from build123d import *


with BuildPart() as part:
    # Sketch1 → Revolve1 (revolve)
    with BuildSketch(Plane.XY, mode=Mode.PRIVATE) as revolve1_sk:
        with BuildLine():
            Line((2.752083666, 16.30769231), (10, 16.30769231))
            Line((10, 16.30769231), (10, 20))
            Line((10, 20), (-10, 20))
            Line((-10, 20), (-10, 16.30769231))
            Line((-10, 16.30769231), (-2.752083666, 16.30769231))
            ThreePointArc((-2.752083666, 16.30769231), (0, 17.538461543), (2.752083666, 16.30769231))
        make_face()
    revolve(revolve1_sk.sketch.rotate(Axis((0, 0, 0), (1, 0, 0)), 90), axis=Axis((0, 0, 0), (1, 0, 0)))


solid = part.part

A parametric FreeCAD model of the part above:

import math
import FreeCAD as App
import Part
import Sketcher

V = App.Vector
Q = App.Units.Quantity

doc = App.newDocument("Part")
body = doc.addObject("PartDesign::Body", "Body")

sketch1 = doc.addObject("Sketcher::SketchObject", "Sketch")
body.addObject(sketch1)
sketch1.AttachmentSupport = (doc.XY_Plane, [""])
sketch1.MapMode = "FlatFace"
sketch1.addGeometry(Part.LineSegment(V(2.752084, 16.307692, 0), V(10, 16.307692, 0)), False)
sketch1.addGeometry(Part.LineSegment(V(10, 16.307692, 0), V(10, 20, 0)), False)
sketch1.addGeometry(Part.LineSegment(V(10, 20, 0), V(-10, 20, 0)), False)
sketch1.addGeometry(Part.LineSegment(V(-10, 20, 0), V(-10, 16.307692, 0)), False)
sketch1.addGeometry(Part.LineSegment(V(-10, 16.307692, 0), V(-2.752084, 16.307692, 0)), False)
sketch1.addGeometry(Part.ArcOfCircle(Part.Circle(V(0, 13.846154, 0), V(0, 0, 1), 3.692308), math.radians(41.810315), math.radians(138.189685)), False)
sketch1.addConstraint(Sketcher.Constraint("Coincident", 0, 2, 1, 1))
sketch1.addConstraint(Sketcher.Constraint("Coincident", 1, 2, 2, 1))
sketch1.addConstraint(Sketcher.Constraint("Coincident", 2, 2, 3, 1))
sketch1.addConstraint(Sketcher.Constraint("Coincident", 3, 2, 4, 1))
sketch1.addConstraint(Sketcher.Constraint("Coincident", 4, 2, 5, 2))
sketch1.addConstraint(Sketcher.Constraint("Coincident", 5, 1, 0, 1))
sketch1.addConstraint(Sketcher.Constraint("Horizontal", 0))
sketch1.addConstraint(Sketcher.Constraint("Vertical", 1))
sketch1.addConstraint(Sketcher.Constraint("Horizontal", 2))
sketch1.addConstraint(Sketcher.Constraint("Vertical", 3))
sketch1.addConstraint(Sketcher.Constraint("Horizontal", 4))
sketch1.addConstraint(Sketcher.Constraint("Symmetric", 0, 2, 3, 2, -2))
sketch1.addConstraint(Sketcher.Constraint("PointOnObject", 5, 3, -2))
sketch1.addConstraint(Sketcher.Constraint("DistanceX", 2, 2, 2, 1, Q("20 mm")))
sketch1.addConstraint(Sketcher.Constraint("DistanceY", -1, 1, 1, 2, Q("20 mm")))
sketch1.addConstraint(Sketcher.Constraint("Radius", 5, Q("3.692308 mm")))
sketch1.addConstraint(Sketcher.Constraint("DistanceX", 0, 1, 0, 2, Q("7.247916 mm")))
sketch1.addConstraint(Sketcher.Constraint("DistanceY", 1, 1, 1, 2, Q("3.692308 mm")))
revolution = doc.addObject("PartDesign::Revolution", "Revolution")
body.addObject(revolution)
revolution.Profile = sketch1
revolution.ReferenceAxis = (sketch1, ["H_Axis"])
revolution.Angle = 360

doc.recompute()
